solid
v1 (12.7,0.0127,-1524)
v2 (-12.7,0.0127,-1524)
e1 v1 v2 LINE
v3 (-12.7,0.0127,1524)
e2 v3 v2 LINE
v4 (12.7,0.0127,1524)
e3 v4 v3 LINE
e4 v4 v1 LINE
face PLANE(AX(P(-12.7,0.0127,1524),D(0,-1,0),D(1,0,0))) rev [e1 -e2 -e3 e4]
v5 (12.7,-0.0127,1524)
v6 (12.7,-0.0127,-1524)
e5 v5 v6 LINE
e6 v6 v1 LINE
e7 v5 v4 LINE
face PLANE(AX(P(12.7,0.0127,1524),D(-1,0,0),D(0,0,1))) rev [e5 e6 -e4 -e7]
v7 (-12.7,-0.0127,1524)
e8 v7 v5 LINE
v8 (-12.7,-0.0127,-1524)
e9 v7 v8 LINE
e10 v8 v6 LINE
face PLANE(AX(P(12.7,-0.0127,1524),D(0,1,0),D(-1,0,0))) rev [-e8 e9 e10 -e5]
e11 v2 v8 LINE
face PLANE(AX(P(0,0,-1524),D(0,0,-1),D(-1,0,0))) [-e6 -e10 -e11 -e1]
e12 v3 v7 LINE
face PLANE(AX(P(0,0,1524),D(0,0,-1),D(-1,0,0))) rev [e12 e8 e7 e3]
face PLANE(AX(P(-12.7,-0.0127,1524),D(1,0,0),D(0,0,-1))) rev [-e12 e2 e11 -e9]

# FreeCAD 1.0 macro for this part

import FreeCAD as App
import Part
import Sketcher
Q = App.Units.Quantity


def add_polygon(sketch, points):
    """Adds a closed chain of lines whose ends are joined by coincident constraints."""
    first, n = sketch.GeometryCount, len(points)
    for a, b in zip(points, points[1:] + points[:1]):
        sketch.addGeometry(Part.LineSegment(App.Vector(*a, 0), App.Vector(*b, 0)), False)
    for i in range(n):
        sketch.addConstraint(Sketcher.Constraint("Coincident", first + i, 2, first + (i + 1) % n, 1))

doc = App.newDocument("Part")
body = doc.addObject("PartDesign::Body", "Body")

sketch1 = doc.addObject("Sketcher::SketchObject", "Sketch")
body.addObject(sketch1)
sketch1.AttachmentSupport = (doc.XY_Plane, [""])
sketch1.MapMode = "FlatFace"
add_polygon(sketch1, [(-12.7, 0.013), (-12.7, -0.013), (12.7, -0.013), (12.7, 0.013)])
sketch1.addConstraint([
    Sketcher.Constraint("Vertical", 0),
    Sketcher.Constraint("Horizontal", 1),
    Sketcher.Constraint("Vertical", 2),
    Sketcher.Constraint("Horizontal", 3),
    Sketcher.Constraint("Symmetric", 0, 2, 2, 2, -1, 1),
    Sketcher.Constraint("DistanceX", 1, 1, 1, 2, Q("1 in")),
    Sketcher.Constraint("DistanceY", 0, 2, 0, 1, Q("0.001 in")),
])
pad1 = doc.addObject("PartDesign::Pad", "Pad")
body.addObject(pad1)
pad1.Profile = sketch1
pad1.Length = Q("120 in")
pad1.Midplane = True

doc.recompute()
